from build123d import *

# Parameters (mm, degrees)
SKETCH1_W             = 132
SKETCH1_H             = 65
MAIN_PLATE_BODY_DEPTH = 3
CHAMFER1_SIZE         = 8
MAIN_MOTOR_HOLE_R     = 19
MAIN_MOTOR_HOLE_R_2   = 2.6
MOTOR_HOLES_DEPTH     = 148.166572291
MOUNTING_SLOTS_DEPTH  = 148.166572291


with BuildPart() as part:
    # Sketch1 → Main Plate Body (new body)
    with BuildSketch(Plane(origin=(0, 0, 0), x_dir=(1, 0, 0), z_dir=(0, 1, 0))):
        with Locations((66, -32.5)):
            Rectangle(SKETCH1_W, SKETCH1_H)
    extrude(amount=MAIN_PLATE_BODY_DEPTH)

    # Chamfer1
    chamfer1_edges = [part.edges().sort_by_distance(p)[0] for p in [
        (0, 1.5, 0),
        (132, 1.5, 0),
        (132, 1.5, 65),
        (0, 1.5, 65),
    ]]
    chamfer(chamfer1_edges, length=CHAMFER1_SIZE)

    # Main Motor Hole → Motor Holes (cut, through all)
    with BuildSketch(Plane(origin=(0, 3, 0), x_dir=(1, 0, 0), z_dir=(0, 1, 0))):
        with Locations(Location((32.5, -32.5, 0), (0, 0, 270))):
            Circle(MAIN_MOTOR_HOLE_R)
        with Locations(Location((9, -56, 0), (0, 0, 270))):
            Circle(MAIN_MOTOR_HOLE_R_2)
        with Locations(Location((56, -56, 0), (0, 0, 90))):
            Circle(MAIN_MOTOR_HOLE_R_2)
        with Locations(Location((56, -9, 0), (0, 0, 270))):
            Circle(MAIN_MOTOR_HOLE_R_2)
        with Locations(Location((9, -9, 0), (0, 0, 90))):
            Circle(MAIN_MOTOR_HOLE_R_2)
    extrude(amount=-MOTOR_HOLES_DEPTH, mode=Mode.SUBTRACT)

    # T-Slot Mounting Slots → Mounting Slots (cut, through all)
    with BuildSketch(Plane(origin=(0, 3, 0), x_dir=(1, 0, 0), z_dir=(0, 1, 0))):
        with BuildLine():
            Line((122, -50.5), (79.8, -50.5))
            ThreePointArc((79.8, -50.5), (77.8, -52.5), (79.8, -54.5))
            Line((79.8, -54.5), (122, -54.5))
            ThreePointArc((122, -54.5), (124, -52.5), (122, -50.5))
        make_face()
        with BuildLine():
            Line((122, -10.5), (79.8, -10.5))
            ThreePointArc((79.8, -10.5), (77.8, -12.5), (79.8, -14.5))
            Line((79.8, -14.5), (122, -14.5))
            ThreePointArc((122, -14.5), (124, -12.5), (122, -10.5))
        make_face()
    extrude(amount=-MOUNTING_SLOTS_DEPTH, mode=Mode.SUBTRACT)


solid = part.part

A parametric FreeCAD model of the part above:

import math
import FreeCAD as App
import Part
import Sketcher

V = App.Vector


def edges_at(feature, points):
    """Names of the edges that pass closest to the given points."""
    edges = feature.Shape.Edges
    near = lambda p: min(range(len(edges)), key=lambda i: edges[i].distToShape(Part.Vertex(*p))[0])
    return sorted({f"Edge{near(p) + 1}" for p in points})


def add_polygon(sketch, points):
    """Adds a closed chain of lines whose ends are joined by coincident constraints."""
    first, n = sketch.GeometryCount, len(points)
    for a, b in zip(points, points[1:] + points[:1]):
        sketch.addGeometry(Part.LineSegment(App.Vector(*a, 0), App.Vector(*b, 0)), False)
    for i in range(n):
        sketch.addConstraint(Sketcher.Constraint("Coincident", first + i, 2, first + (i + 1) % n, 1))

doc = App.newDocument("Part")
body = doc.addObject("PartDesign::Body", "Body")

# Sketch on XZ plane
sketch1 = doc.addObject("Sketcher::SketchObject", "Sketch")
body.addObject(sketch1)
sketch1.AttachmentSupport = (doc.XZ_Plane, [""])
sketch1.MapMode = "FlatFace"
add_polygon(sketch1, [(0, 0), (0, 65), (132, 65), (132, 0)])  # lines 0-3
sketch1.addConstraint([
    Sketcher.Constraint("Vertical", 0),
    Sketcher.Constraint("Horizontal", 1),
    Sketcher.Constraint("Vertical", 2),
    Sketcher.Constraint("Horizontal", 3),
    Sketcher.Constraint("Coincident", 3, 2, -1, 1),
    Sketcher.Constraint("DistanceX", 1, 1, 1, 2, 132.0),
    Sketcher.Constraint("DistanceY", 0, 1, 0, 2, 65.0),
])
pad1 = doc.addObject("PartDesign::Pad", "Pad")
body.addObject(pad1)
pad1.Profile = sketch1
pad1.Length = 3
pad1.Reversed = True
doc.recompute()

chamfer = doc.addObject("PartDesign::Chamfer", "Chamfer")
body.addObject(chamfer)
chamfer.Base = (pad1, edges_at(pad1, [
    (0, 1.5, 0),
    (132, 1.5, 0),
    (132, 1.5, 65),
    (0, 1.5, 65),
]))
chamfer.Size = 8

# Sketch on XZ plane
sketch2 = doc.addObject("Sketcher::SketchObject", "Sketch001")
body.addObject(sketch2)
sketch2.AttachmentSupport = (doc.XZ_Plane, [""])
sketch2.MapMode = "FlatFace"
sketch2.AttachmentOffset = App.Placement(V(0, 0, -3), App.Rotation())
sketch2.addGeometry([
    Part.Circle(V(32.5, 32.5, 0), V(0, 0, 1), 19),  # 0
    Part.Circle(V(9, 56, 0), V(0, 0, 1), 2.6),  # 1
    Part.Circle(V(56, 56, 0), V(0, 0, 1), 2.6),  # 2
    Part.Circle(V(56, 9, 0), V(0, 0, 1), 2.6),  # 3
    Part.Circle(V(9, 9, 0), V(0, 0, 1), 2.6),  # 4
], False)
sketch2.addConstraint([
    Sketcher.Constraint("Equal", 1, 2),
    Sketcher.Constraint("Equal", 2, 3),
    Sketcher.Constraint("Equal", 3, 4),
    Sketcher.Constraint("Horizontal", 1, 3, 2, 3),
    Sketcher.Constraint("Horizontal", 3, 3, 4, 3),
    Sketcher.Constraint("Vertical", 2, 3, 3, 3),
    Sketcher.Constraint("Vertical", 1, 3, 4, 3),
    Sketcher.Constraint("Diameter", 0, 38.0),
    Sketcher.Constraint("Diameter", 1, 5.2),
    Sketcher.Constraint("DistanceX", -1, 1, 1, 3, 9.0),
    Sketcher.Constraint("DistanceY", -1, 1, 1, 3, 56.0),
    Sketcher.Constraint("DistanceX", -1, 1, 2, 3, 56.0),
    Sketcher.Constraint("DistanceY", -1, 1, 3, 3, 9.0),
    Sketcher.Constraint("DistanceX", -1, 1, 0, 3, 32.5),
    Sketcher.Constraint("DistanceY", -1, 1, 0, 3, 32.5),
])
pocket1 = doc.addObject("PartDesign::Pocket", "Pocket")
body.addObject(pocket1)
pocket1.Profile = sketch2
pocket1.Type = "ThroughAll"
pocket1.Reversed = True

# Sketch on XZ plane
sketch3 = doc.addObject("Sketcher::SketchObject", "Sketch002")
body.addObject(sketch3)
sketch3.AttachmentSupport = (doc.XZ_Plane, [""])
sketch3.MapMode = "FlatFace"
sketch3.AttachmentOffset = App.Placement(V(0, 0, -3), App.Rotation())
sketch3.addGeometry([
    Part.LineSegment(V(122, 50.5, 0), V(79.8, 50.5, 0)),  # 0
    Part.ArcOfCircle(Part.Circle(V(79.8, 52.5, 0), V(0, 0, 1), 2), math.radians(90), math.radians(270)),  # 1
    Part.LineSegment(V(79.8, 54.5, 0), V(122, 54.5, 0)),  # 2
    Part.ArcOfCircle(Part.Circle(V(122, 52.5, 0), V(0, 0, 1), 2), math.radians(-90), math.radians(90)),  # 3
    Part.LineSegment(V(122, 10.5, 0), V(79.8, 10.5, 0)),  # 4
    Part.ArcOfCircle(Part.Circle(V(79.8, 12.5, 0), V(0, 0, 1), 2), math.radians(90), math.radians(270)),  # 5
    Part.LineSegment(V(79.8, 14.5, 0), V(122, 14.5, 0)),  # 6
    Part.ArcOfCircle(Part.Circle(V(122, 12.5, 0), V(0, 0, 1), 2), math.radians(-90), math.radians(90)),  # 7
], False)
sketch3.addConstraint([
    Sketcher.Constraint("Tangent", 0, 2, 1, 2),
    Sketcher.Constraint("Tangent", 1, 1, 2, 1),
    Sketcher.Constraint("Tangent", 2, 2, 3, 2),
    Sketcher.Constraint("Tangent", 3, 1, 0, 1),
    Sketcher.Constraint("Tangent", 4, 2, 5, 2),
    Sketcher.Constraint("Tangent", 5, 1, 6, 1),
    Sketcher.Constraint("Tangent", 6, 2, 7, 2),
    Sketcher.Constraint("Tangent", 7, 1, 4, 1),
    Sketcher.Constraint("Horizontal", 0),
    Sketcher.Constraint("Horizontal", 2),
    Sketcher.Constraint("Horizontal", 4),
    Sketcher.Constraint("Horizontal", 6),
    Sketcher.Constraint("Equal", 3, 5),
    Sketcher.Constraint("Vertical", 1, 3, 5, 3),
    Sketcher.Constraint("Vertical", 3, 3, 7, 3),
    Sketcher.Constraint("Radius", 1, 2.0),
    Sketcher.Constraint("DistanceX", 0, 2, 0, 1, 42.2),
    Sketcher.Constraint("DistanceX", -1, 1, 3, 3, 122.0),
    Sketcher.Constraint("DistanceY", 5, 3, 1, 3, 40.0),
    Sketcher.Constraint("DistanceY", -1, 1, 1, 3, 52.5),
])
pocket2 = doc.addObject("PartDesign::Pocket", "Pocket001")
body.addObject(pocket2)
pocket2.Profile = sketch3
pocket2.Type = "ThroughAll"
pocket2.Reversed = True

doc.recompute()
